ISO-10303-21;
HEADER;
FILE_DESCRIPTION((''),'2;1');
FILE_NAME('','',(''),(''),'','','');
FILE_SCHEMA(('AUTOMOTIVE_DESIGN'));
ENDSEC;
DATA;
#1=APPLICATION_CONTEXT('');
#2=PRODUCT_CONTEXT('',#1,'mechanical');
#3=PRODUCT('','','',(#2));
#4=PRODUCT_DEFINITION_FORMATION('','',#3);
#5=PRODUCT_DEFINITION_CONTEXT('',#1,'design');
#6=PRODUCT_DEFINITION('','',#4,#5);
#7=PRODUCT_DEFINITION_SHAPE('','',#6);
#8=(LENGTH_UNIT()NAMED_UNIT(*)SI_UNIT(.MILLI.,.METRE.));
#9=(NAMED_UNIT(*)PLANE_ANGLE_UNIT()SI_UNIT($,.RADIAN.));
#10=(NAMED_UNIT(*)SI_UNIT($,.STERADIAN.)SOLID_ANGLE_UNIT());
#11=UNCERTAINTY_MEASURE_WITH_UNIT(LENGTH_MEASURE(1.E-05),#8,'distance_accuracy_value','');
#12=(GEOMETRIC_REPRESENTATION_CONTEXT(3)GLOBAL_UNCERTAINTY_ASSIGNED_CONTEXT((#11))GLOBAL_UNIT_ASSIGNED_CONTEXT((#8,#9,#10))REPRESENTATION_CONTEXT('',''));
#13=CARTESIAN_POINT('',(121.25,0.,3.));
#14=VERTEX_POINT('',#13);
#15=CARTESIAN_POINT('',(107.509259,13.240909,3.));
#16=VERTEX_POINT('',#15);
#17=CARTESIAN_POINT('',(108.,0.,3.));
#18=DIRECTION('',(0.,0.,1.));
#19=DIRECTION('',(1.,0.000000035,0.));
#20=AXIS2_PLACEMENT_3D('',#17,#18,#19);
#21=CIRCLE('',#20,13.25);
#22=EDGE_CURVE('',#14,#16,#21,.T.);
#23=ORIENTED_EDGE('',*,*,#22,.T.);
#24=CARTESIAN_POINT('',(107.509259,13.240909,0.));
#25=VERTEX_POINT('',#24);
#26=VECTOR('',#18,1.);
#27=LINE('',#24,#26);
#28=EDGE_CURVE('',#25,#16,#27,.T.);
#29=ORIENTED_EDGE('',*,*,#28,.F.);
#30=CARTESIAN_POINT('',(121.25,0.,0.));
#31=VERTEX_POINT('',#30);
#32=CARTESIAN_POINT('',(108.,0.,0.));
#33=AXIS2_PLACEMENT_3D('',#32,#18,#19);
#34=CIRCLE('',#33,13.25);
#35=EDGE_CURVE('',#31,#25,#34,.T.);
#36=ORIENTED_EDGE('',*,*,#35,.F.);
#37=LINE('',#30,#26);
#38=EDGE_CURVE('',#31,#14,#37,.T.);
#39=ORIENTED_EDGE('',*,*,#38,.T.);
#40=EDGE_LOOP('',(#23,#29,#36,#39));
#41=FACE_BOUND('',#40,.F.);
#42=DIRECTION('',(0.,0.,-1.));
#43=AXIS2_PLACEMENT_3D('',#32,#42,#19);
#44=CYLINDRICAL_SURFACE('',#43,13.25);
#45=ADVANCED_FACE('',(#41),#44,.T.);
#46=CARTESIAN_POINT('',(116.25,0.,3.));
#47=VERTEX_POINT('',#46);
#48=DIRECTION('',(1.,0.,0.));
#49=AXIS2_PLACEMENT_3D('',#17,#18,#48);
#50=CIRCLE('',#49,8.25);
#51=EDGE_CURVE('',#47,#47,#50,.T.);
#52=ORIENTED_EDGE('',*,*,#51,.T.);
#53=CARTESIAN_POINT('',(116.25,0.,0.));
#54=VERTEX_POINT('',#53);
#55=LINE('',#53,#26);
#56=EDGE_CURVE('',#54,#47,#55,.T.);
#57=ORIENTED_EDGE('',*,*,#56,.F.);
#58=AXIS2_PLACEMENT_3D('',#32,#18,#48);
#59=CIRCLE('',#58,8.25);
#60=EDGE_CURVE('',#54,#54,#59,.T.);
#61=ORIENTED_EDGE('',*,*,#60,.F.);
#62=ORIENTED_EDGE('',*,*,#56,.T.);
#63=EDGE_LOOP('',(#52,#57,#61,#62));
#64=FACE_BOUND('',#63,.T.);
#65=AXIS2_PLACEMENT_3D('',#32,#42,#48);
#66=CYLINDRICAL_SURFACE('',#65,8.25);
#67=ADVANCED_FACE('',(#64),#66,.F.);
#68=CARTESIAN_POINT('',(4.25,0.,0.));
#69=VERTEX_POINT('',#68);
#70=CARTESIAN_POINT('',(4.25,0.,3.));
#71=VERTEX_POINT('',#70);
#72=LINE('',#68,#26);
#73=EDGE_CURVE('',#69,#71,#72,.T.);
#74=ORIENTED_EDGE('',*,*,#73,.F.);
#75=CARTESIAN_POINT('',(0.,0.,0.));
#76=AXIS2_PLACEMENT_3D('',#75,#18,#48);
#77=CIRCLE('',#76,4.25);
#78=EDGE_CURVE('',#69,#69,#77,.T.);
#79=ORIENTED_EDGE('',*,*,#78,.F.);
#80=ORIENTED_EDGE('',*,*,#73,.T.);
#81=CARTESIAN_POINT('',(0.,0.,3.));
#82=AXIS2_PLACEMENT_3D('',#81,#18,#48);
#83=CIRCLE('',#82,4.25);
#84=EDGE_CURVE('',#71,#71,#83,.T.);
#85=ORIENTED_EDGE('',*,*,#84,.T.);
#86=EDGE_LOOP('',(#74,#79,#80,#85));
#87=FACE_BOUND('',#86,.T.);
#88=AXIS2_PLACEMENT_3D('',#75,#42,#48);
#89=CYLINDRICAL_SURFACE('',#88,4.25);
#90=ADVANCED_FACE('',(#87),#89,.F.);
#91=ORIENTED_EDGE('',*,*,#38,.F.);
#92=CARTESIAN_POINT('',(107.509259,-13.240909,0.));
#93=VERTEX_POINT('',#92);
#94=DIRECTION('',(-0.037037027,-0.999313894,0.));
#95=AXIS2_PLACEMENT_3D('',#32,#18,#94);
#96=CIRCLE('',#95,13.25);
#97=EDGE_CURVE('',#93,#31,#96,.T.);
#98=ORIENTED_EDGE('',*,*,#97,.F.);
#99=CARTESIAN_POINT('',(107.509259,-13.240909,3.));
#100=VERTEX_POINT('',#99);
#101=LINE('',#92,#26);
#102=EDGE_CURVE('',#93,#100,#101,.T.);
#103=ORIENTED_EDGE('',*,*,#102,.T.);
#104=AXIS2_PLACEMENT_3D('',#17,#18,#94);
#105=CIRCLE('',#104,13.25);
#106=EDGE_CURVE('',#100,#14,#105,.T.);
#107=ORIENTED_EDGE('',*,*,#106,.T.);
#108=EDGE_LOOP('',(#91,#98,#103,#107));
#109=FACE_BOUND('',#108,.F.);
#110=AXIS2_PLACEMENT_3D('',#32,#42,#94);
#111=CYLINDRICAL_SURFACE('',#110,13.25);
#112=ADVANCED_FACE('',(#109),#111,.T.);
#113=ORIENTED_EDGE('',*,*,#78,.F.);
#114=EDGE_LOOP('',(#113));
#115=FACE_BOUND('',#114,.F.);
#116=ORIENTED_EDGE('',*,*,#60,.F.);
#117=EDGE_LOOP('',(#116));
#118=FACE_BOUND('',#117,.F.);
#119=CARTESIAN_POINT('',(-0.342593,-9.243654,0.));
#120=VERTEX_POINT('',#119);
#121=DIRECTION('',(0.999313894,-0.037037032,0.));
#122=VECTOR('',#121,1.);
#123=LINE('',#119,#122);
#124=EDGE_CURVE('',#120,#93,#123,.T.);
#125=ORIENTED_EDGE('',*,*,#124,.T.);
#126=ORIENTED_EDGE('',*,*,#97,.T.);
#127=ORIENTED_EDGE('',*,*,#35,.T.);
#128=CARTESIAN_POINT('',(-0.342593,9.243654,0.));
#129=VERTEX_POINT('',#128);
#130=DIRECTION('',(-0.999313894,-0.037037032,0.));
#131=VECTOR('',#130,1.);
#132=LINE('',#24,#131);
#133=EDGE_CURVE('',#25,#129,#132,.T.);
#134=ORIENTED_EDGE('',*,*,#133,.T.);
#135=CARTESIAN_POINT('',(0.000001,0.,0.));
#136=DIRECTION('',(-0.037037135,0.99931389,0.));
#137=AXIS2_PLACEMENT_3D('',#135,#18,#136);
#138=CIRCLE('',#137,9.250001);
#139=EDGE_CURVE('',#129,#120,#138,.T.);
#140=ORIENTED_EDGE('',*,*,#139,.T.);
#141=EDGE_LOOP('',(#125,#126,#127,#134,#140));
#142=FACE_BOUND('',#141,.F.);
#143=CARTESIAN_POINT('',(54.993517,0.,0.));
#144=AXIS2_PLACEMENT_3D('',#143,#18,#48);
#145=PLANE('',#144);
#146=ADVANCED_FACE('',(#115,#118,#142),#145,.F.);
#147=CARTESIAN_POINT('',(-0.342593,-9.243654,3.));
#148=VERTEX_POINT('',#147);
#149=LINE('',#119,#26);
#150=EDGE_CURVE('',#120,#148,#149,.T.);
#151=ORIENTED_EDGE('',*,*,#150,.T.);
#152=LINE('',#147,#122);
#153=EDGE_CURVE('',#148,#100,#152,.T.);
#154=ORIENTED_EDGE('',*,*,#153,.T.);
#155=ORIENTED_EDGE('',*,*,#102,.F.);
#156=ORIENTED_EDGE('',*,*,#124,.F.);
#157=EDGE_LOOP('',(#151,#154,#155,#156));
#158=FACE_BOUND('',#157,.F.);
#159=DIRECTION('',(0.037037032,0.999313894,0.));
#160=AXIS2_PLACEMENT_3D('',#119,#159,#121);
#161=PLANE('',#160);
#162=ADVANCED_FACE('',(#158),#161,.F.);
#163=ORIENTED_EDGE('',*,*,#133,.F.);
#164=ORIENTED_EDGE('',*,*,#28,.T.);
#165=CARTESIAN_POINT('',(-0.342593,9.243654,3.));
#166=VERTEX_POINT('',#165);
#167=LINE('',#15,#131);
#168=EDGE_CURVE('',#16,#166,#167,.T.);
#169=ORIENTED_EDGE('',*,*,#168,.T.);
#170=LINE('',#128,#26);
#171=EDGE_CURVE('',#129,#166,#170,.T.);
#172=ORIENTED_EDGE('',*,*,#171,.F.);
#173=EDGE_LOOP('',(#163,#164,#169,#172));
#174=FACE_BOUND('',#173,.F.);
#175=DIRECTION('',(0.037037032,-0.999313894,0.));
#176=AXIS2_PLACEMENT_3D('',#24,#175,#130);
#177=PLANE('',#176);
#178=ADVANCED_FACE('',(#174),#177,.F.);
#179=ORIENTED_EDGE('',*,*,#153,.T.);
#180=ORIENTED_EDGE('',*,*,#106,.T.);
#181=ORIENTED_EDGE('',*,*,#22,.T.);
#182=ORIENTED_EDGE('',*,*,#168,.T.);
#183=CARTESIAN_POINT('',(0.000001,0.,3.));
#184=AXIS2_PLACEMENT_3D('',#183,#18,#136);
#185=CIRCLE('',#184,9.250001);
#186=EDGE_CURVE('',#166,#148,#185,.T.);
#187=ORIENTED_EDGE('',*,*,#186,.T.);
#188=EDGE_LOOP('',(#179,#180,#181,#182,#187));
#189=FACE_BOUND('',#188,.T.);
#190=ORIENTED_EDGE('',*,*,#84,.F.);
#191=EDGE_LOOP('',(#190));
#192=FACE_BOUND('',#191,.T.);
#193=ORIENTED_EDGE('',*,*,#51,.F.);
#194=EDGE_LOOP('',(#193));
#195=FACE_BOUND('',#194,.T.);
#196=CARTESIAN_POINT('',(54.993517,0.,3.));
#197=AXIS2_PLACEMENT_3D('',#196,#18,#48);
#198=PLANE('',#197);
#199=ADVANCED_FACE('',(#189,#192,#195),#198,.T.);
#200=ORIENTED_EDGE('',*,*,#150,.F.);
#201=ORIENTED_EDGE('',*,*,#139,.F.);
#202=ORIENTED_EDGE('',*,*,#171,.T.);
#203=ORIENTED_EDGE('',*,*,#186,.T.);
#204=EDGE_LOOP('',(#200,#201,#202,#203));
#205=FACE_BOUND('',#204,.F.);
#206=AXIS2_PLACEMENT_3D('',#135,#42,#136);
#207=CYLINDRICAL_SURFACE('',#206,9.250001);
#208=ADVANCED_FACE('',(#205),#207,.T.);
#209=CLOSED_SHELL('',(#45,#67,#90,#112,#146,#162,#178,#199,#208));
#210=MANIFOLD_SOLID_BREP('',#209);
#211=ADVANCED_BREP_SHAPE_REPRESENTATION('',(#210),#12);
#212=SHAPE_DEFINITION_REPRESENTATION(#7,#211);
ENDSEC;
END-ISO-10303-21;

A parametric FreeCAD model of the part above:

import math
import FreeCAD as App
import Part
import Sketcher

V = App.Vector

doc = App.newDocument("Part")
body = doc.addObject("PartDesign::Body", "Body")

sketch1 = body.newObject("Sketcher::SketchObject", "Sketch")
sketch1.AttachmentSupport = (doc.getObject("XY_Plane"), [""])
sketch1.MapMode = "FlatFace"
sketch1.addGeometry(Part.LineSegment(V(-0.3, -9.2, 0), V(107.5, -13.2, 0)), False)
sketch1.addGeometry(Part.ArcOfCircle(Part.Circle(V(108, 0, 0), V(0, 0, 1), 13.3), math.radians(-92), math.radians(0)), False)
sketch1.addGeometry(Part.ArcOfCircle(Part.Circle(V(108, 0, 0), V(0, 0, 1), 13.3), math.radians(0), math.radians(92)), False)
sketch1.addGeometry(Part.LineSegment(V(107.5, 13.2, 0), V(-0.3, 9.2, 0)), False)
sketch1.addGeometry(Part.ArcOfCircle(Part.Circle(V(0, 0, 0), V(0, 0, 1), 9.3), math.radians(92), math.radians(268)), False)
sketch1.addGeometry(Part.Circle(V(0, 0, 0), V(0, 0, 1), 4.2), False)
sketch1.addGeometry(Part.Circle(V(108, 0, 0), V(0, 0, 1), 8.2), False)
sketch1.addConstraint(Sketcher.Constraint("Tangent", 0, 2, 1, 1))
sketch1.addConstraint(Sketcher.Constraint("Tangent", 1, 2, 2, 1))
sketch1.addConstraint(Sketcher.Constraint("Tangent", 2, 2, 3, 1))
sketch1.addConstraint(Sketcher.Constraint("Tangent", 3, 2, 4, 1))
sketch1.addConstraint(Sketcher.Constraint("Tangent", 4, 2, 0, 1))
sketch1.addConstraint(Sketcher.Constraint("Coincident", 4, 3, -1, 1))
sketch1.addConstraint(Sketcher.Constraint("Coincident", 5, 3, -1, 1))
sketch1.addConstraint(Sketcher.Constraint("Coincident", 6, 3, 1, 3))
sketch1.addConstraint(Sketcher.Constraint("Equal", 1, 2))
sketch1.addConstraint(Sketcher.Constraint("PointOnObject", 1, 3, -1))
sketch1.addConstraint(Sketcher.Constraint("PointOnObject", 1, 2, -1))
sketch1.addConstraint(Sketcher.Constraint("Diameter", 5, 8.5))
sketch1.addConstraint(Sketcher.Constraint("Diameter", 6, 16.5))
sketch1.addConstraint(Sketcher.Constraint("Radius", 1, 13.25))
sketch1.addConstraint(Sketcher.Constraint("Radius", 4, 9.250001))
sketch1.addConstraint(Sketcher.Constraint("DistanceX", -1, 1, 1, 3, 108.0))
pad1 = body.newObject("PartDesign::Pad", "Pad")
pad1.Profile = sketch1
pad1.Length = 3

doc.recompute()
